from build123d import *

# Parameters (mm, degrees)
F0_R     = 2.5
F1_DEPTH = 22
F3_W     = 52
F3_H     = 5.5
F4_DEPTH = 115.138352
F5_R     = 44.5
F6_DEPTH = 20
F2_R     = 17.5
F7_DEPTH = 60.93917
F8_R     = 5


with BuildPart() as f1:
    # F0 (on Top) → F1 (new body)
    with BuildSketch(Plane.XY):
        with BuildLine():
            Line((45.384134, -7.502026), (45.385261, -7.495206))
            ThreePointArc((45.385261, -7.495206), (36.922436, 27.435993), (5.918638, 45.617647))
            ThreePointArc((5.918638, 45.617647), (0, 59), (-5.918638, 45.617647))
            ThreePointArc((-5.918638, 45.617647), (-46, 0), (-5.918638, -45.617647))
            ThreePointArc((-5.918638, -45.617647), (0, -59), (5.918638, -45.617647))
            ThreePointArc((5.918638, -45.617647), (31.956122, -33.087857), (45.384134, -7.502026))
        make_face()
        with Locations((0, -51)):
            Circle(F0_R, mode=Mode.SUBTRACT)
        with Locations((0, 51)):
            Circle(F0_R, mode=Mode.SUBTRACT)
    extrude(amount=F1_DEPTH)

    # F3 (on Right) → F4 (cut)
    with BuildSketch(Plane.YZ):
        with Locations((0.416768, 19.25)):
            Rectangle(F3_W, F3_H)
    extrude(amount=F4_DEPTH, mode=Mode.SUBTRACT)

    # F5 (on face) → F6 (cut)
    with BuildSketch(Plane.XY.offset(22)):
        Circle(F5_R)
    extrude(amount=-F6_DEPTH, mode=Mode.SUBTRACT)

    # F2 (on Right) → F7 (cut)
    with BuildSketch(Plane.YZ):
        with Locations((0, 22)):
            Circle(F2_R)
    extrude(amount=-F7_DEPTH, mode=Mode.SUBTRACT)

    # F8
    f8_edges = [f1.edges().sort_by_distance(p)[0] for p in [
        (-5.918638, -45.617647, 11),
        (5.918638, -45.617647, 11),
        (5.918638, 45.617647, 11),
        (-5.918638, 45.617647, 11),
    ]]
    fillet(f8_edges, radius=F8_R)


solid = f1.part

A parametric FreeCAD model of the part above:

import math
import FreeCAD as App
import Part
import Sketcher
from FreeCAD import Vector
Q = App.Units.Quantity


def edges_at(feature, points):
    """Names of the edges that pass closest to the given points."""
    edges = feature.Shape.Edges
    near = lambda p: min(range(len(edges)), key=lambda i: edges[i].distToShape(Part.Vertex(*p))[0])
    return sorted({f"Edge{near(p) + 1}" for p in points})

doc = App.newDocument("Part")
body = doc.addObject("PartDesign::Body", "Body")

sketch1 = body.newObject("Sketcher::SketchObject", "Sketch")
sketch1.AttachmentSupport = (doc.getObject("XY_Plane"), [""])
sketch1.MapMode = "FlatFace"
sketch1.addGeometry([
    Part.LineSegment(Vector(45.384, -7.502, 0), Vector(45.385, -7.495, 0)),
    Part.ArcOfCircle(Part.Circle(Vector(0, 0, 0), Vector(0, 0, 1), 46), math.radians(-9), math.radians(83)),
    Part.ArcOfCircle(Part.Circle(Vector(0, 51, 0), Vector(0, 0, 1), 8), math.radians(-42), math.radians(222)),
    Part.ArcOfCircle(Part.Circle(Vector(0, 0, 0), Vector(0, 0, 1), 46), math.radians(97), math.radians(263)),
    Part.ArcOfCircle(Part.Circle(Vector(0, -51, 0), Vector(0, 0, 1), 8), math.radians(138), math.radians(402)),
    Part.ArcOfCircle(Part.Circle(Vector(0, 0, 0), Vector(0, 0, 1), 46), math.radians(-83), math.radians(-9)),
    Part.Circle(Vector(0, -51, 0), Vector(0, 0, 1), 2.5),
    Part.Circle(Vector(0, 51, 0), Vector(0, 0, 1), 2.5),
], False)
sketch1.addConstraint([
    Sketcher.Constraint("Coincident", 0, 2, 1, 1),
    Sketcher.Constraint("Coincident", 1, 2, 2, 1),
    Sketcher.Constraint("Coincident", 2, 2, 3, 1),
    Sketcher.Constraint("Coincident", 3, 2, 4, 1),
    Sketcher.Constraint("Coincident", 4, 2, 5, 1),
    Sketcher.Constraint("Coincident", 5, 2, 0, 1),
    Sketcher.Constraint("Coincident", 1, 3, -1, 1),
    Sketcher.Constraint("Coincident", 3, 3, -1, 1),
    Sketcher.Constraint("Coincident", 5, 3, -1, 1),
    Sketcher.Constraint("Coincident", 6, 3, 4, 3),
    Sketcher.Constraint("Coincident", 7, 3, 2, 3),
    Sketcher.Constraint("Equal", 1, 3),
    Sketcher.Constraint("Equal", 2, 4),
    Sketcher.Constraint("Equal", 3, 5),
    Sketcher.Constraint("Equal", 6, 7),
    Sketcher.Constraint("Symmetric", 2, 3, 4, 3, -1, 1),
    Sketcher.Constraint("PointOnObject", 2, 3, -2),
    Sketcher.Constraint("Diameter", 6, Q("5 mm")),
    Sketcher.Constraint("Radius", 1, Q("46.000001 mm")),
    Sketcher.Constraint("Radius", 2, Q("8 mm")),
    Sketcher.Constraint("DistanceY", -1, 1, 2, 3, Q("51 mm")),
    Sketcher.Constraint("DistanceX", -1, 1, 0, 2, Q("45.385261 mm")),
    Sketcher.Constraint("DistanceY", 5, 2, 0, 2, Q("0.00682 mm")),
])
pad1 = body.newObject("PartDesign::Pad", "Pad")
pad1.Profile = sketch1
pad1.Length = 22

sketch2 = body.newObject("Sketcher::SketchObject", "Sketch001")
sketch2.AttachmentSupport = (doc.getObject("YZ_Plane"), [""])
sketch2.MapMode = "FlatFace"
sketch2.addGeometry([
    Part.LineSegment(Vector(-26, 22, 0), Vector(-26, 16, 0)),
    Part.LineSegment(Vector(-26, 16, 0), Vector(26, 16, 0)),
    Part.LineSegment(Vector(26, 16, 0), Vector(26, 22, 0)),
    Part.LineSegment(Vector(26, 22, 0), Vector(-26, 22, 0)),
], False)
sketch2.addConstraint([
    Sketcher.Constraint("Coincident", 0, 2, 1, 1),
    Sketcher.Constraint("Coincident", 1, 2, 2, 1),
    Sketcher.Constraint("Coincident", 2, 2, 3, 1),
    Sketcher.Constraint("Coincident", 3, 2, 0, 1),
    Sketcher.Constraint("Vertical", 0),
    Sketcher.Constraint("Horizontal", 1),
    Sketcher.Constraint("Vertical", 2),
    Sketcher.Constraint("Horizontal", 3),
    Sketcher.Constraint("DistanceX", 1, 1, 1, 2, Q("52 mm")),
    Sketcher.Constraint("DistanceY", 0, 2, 0, 1, Q("5.5 mm")),
    Sketcher.Constraint("DistanceY", -1, 1, 2, 2, Q("22 mm")),
    Sketcher.Constraint("DistanceX", 0, 2, -1, 1, Q("25.583232 mm")),
])
pocket1 = body.newObject("PartDesign::Pocket", "Pocket")
pocket1.Profile = sketch2
pocket1.Length = 115.138352
pocket1.Reversed = True

sketch3 = body.newObject("Sketcher::SketchObject", "Sketch002")
sketch3.AttachmentSupport = (doc.getObject("XY_Plane"), [""])
sketch3.MapMode = "FlatFace"
sketch3.AttachmentOffset = App.Placement(Vector(0, 0, 22), App.Rotation())
sketch3.addGeometry(Part.Circle(Vector(0, 0, 0), Vector(0, 0, 1), 44), False)
sketch3.addConstraint([
    Sketcher.Constraint("Coincident", 0, 3, -1, 1),
    Sketcher.Constraint("Diameter", 0, Q("89 mm")),
])
pocket2 = body.newObject("PartDesign::Pocket", "Pocket001")
pocket2.Profile = sketch3
pocket2.Length = 20

sketch4 = body.newObject("Sketcher::SketchObject", "Sketch003")
sketch4.AttachmentSupport = (doc.getObject("YZ_Plane"), [""])
sketch4.MapMode = "FlatFace"
sketch4.addGeometry(Part.Circle(Vector(0, 22, 0), Vector(0, 0, 1), 18), False)
sketch4.addConstraint([
    Sketcher.Constraint("PointOnObject", 0, 3, -2),
    Sketcher.Constraint("Diameter", 0, Q("35 mm")),
    Sketcher.Constraint("DistanceY", -1, 1, 0, 3, Q("22 mm")),
])
pocket3 = body.newObject("PartDesign::Pocket", "Pocket002")
pocket3.Profile = sketch4
pocket3.Length = 60.93917
doc.recompute()

fillet = body.newObject("PartDesign::Fillet", "Fillet")
fillet.Base = (pocket3, edges_at(pocket3, [
    (-5.919, -45.618, 11),
    (5.919, -45.618, 11),
    (5.919, 45.618, 11),
    (-5.919, 45.618, 11),
]))
fillet.Radius = 5

doc.recompute()
